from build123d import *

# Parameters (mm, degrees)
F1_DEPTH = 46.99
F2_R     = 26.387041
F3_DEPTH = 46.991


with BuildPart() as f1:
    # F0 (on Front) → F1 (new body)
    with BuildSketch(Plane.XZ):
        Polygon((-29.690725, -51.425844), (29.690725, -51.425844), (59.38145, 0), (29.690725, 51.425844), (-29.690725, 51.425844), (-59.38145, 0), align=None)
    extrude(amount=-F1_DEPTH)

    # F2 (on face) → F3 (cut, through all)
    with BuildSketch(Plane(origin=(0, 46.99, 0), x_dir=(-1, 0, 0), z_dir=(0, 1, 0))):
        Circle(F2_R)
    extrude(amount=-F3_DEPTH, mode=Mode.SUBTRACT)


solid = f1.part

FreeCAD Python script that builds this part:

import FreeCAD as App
import Part
import Sketcher
from FreeCAD import Vector
Q = App.Units.Quantity

doc = App.newDocument("Part")
body = doc.addObject("PartDesign::Body", "Body")

# Sketch on XZ plane
sketch1 = doc.addObject("Sketcher::SketchObject", "Sketch")
body.addObject(sketch1)
sketch1.AttachmentSupport = (doc.XZ_Plane, [""])
sketch1.MapMode = "FlatFace"
sketch1.addGeometry([
    Part.LineSegment(Vector(-30, -51, 0), Vector(30, -51, 0)),  # 0
    Part.LineSegment(Vector(30, -51, 0), Vector(59, 0, 0)),  # 1
    Part.LineSegment(Vector(59, 0, 0), Vector(30, 51, 0)),  # 2
    Part.LineSegment(Vector(30, 51, 0), Vector(-30, 51, 0)),  # 3
    Part.LineSegment(Vector(-30, 51, 0), Vector(-59, 0, 0)),  # 4
    Part.LineSegment(Vector(-59, 0, 0), Vector(-30, -51, 0)),  # 5
], False)
sketch1.addConstraint([
    Sketcher.Constraint("Coincident", 0, 2, 1, 1),
    Sketcher.Constraint("Coincident", 1, 2, 2, 1),
    Sketcher.Constraint("Coincident", 2, 2, 3, 1),
    Sketcher.Constraint("Coincident", 3, 2, 4, 1),
    Sketcher.Constraint("Coincident", 4, 2, 5, 1),
    Sketcher.Constraint("Coincident", 5, 2, 0, 1),
    Sketcher.Constraint("Horizontal", 0),
    Sketcher.Constraint("Horizontal", 3),
    Sketcher.Constraint("Symmetric", 0, 2, 3, 2, -1, 1),
    Sketcher.Constraint("Symmetric", 1, 2, 4, 2, -1, 1),
    Sketcher.Constraint("PointOnObject", 1, 2, -1),
    Sketcher.Constraint("Parallel", 2, 5),
    Sketcher.Constraint("Vertical", 0, 2, 2, 2),
    Sketcher.Constraint("Angle", 1, Q("60 deg")),
    Sketcher.Constraint("DistanceX", 0, 1, 0, 2, 59.38145),
    Sketcher.Constraint("DistanceX", 4, 2, 1, 2, 118.7629),
])
pad1 = doc.addObject("PartDesign::Pad", "Pad")
body.addObject(pad1)
pad1.Profile = sketch1
pad1.Length = Q("1.85 in")
pad1.Reversed = True

# Sketch on XZ plane
sketch2 = doc.addObject("Sketcher::SketchObject", "Sketch001")
body.addObject(sketch2)
sketch2.AttachmentSupport = (doc.XZ_Plane, [""])
sketch2.MapMode = "FlatFace"
sketch2.AttachmentOffset = App.Placement(Vector(0, 0, -1.85 * 25.4), App.Rotation())
sketch2.addGeometry(Part.Circle(Vector(0, 0, 0), Vector(0, 0, 1), 26), False)
sketch2.addConstraint([
    Sketcher.Constraint("Coincident", 0, 3, -1, 1),
    Sketcher.Constraint("Diameter", 0, 52.774082),
])
pocket1 = doc.addObject("PartDesign::Pocket", "Pocket")
body.addObject(pocket1)
pocket1.Profile = sketch2
pocket1.Type = "ThroughAll"
pocket1.Reversed = True

doc.recompute()
